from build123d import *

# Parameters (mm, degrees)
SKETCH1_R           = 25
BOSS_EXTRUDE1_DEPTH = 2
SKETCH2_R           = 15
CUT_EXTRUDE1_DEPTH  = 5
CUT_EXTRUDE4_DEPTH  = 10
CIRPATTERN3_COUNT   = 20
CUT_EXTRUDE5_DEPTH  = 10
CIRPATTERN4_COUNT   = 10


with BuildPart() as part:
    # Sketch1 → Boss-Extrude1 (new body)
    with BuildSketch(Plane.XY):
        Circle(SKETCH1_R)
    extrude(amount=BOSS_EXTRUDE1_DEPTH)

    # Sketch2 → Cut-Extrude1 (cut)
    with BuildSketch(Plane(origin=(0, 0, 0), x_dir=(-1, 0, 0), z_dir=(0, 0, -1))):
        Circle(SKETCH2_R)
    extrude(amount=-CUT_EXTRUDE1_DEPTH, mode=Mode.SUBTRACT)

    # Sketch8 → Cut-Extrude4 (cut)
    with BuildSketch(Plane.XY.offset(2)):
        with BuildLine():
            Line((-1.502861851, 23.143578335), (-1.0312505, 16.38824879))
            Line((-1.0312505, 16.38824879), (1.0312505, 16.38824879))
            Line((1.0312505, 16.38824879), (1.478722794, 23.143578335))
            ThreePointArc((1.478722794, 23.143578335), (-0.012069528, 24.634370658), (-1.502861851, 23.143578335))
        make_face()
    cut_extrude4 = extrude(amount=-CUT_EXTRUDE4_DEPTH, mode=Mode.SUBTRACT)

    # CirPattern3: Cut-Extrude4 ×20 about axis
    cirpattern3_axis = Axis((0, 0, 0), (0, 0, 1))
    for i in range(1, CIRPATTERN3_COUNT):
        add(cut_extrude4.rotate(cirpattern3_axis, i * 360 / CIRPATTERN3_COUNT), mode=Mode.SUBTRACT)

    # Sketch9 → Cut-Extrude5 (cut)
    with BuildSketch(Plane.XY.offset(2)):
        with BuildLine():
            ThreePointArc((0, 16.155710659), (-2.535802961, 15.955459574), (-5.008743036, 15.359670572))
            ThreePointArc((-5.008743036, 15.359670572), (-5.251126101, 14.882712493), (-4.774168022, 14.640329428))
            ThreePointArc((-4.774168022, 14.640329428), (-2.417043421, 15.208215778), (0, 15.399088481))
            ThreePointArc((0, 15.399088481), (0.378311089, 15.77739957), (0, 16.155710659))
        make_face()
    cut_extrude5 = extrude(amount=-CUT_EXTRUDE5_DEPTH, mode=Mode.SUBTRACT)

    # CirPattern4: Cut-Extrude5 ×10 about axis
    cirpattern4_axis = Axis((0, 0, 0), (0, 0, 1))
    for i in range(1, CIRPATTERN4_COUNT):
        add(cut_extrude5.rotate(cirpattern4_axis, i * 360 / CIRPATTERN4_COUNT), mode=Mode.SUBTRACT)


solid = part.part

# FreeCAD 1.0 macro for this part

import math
import FreeCAD as App
import Part
import Sketcher

V = App.Vector

doc = App.newDocument("Part")
body = doc.addObject("PartDesign::Body", "Body")

# Sketch on XY plane
sketch1 = doc.addObject("Sketcher::SketchObject", "Sketch")
body.addObject(sketch1)
sketch1.AttachmentSupport = (doc.XY_Plane, [""])
sketch1.MapMode = "FlatFace"
sketch1.addGeometry(Part.Circle(V(0, 0, 0), V(0, 0, 1), 25), False)
sketch1.addConstraint([
    Sketcher.Constraint("Coincident", 0, 3, -1, 1),
    Sketcher.Constraint("Diameter", 0, 50.0),
])
pad1 = doc.addObject("PartDesign::Pad", "Pad")
body.addObject(pad1)
pad1.Profile = sketch1
pad1.Length = 2

# Sketch on XY plane
sketch2 = doc.addObject("Sketcher::SketchObject", "Sketch001")
body.addObject(sketch2)
sketch2.AttachmentSupport = (doc.XY_Plane, [""])
sketch2.MapMode = "FlatFace"
sketch2.addGeometry(Part.Circle(V(0, 0, 0), V(0, 0, 1), 15), False)
sketch2.addConstraint([
    Sketcher.Constraint("Coincident", 0, 3, -1, 1),
    Sketcher.Constraint("Diameter", 0, 30.0),
])
pocket1 = doc.addObject("PartDesign::Pocket", "Pocket")
body.addObject(pocket1)
pocket1.Profile = sketch2
pocket1.Length = 5
pocket1.Reversed = True

# Sketch on XY plane
sketch3 = doc.addObject("Sketcher::SketchObject", "Sketch002")
body.addObject(sketch3)
sketch3.AttachmentSupport = (doc.XY_Plane, [""])
sketch3.MapMode = "FlatFace"
sketch3.AttachmentOffset = App.Placement(V(0, 0, 2), App.Rotation())
sketch3.addGeometry([
    Part.LineSegment(V(-1.5, 23.1, 0), V(-1, 16.4, 0)),
    Part.LineSegment(V(-1, 16.4, 0), V(1, 16.4, 0)),
    Part.LineSegment(V(1, 16.4, 0), V(1.5, 23.1, 0)),
    Part.ArcOfCircle(Part.Circle(V(0, 23.1, 0), V(0, 0, 1), 1.5), math.radians(0), math.radians(180)),
], False)
sketch3.addConstraint([
    Sketcher.Constraint("Coincident", 0, 2, 1, 1),
    Sketcher.Constraint("Coincident", 1, 2, 2, 1),
    Sketcher.Constraint("Coincident", 2, 2, 3, 1),
    Sketcher.Constraint("Coincident", 3, 2, 0, 1),
    Sketcher.Constraint("Horizontal", 1),
    Sketcher.Constraint("Horizontal", 3, 3, 2, 2),
    Sketcher.Constraint("Horizontal", 2, 2, 3, 2),
    Sketcher.Constraint("DistanceX", 1, 1, 1, 2, 2.062501),
    Sketcher.Constraint("Radius", 3, 1.490792),
    Sketcher.Constraint("Distance", 0, 6.771772),
    Sketcher.Constraint("DistanceX", 3, 3, -1, 1, 0.01207),
    Sketcher.Constraint("DistanceY", -1, 1, 3, 3, 23.143578),
    Sketcher.Constraint("DistanceX", 0, 2, -1, 1, 1.031251),
])
pocket2 = doc.addObject("PartDesign::Pocket", "Pocket001")
body.addObject(pocket2)
pocket2.Profile = sketch3
pocket2.Length = 10
doc.recompute()

polarpattern = doc.addObject("PartDesign::PolarPattern", "PolarPattern")
body.addObject(polarpattern)
polarpattern.Originals = [pocket2]
polarpattern.Axis = (doc.Z_Axis, [""])
polarpattern.Angle = 360
polarpattern.Occurrences = 20
body.Tip = polarpattern

# Sketch on XY plane
sketch4 = doc.addObject("Sketcher::SketchObject", "Sketch003")
body.addObject(sketch4)
sketch4.AttachmentSupport = (doc.XY_Plane, [""])
sketch4.MapMode = "FlatFace"
sketch4.AttachmentOffset = App.Placement(V(0, 0, 2), App.Rotation())
sketch4.addGeometry([
    Part.ArcOfCircle(Part.Circle(V(0, 0, 0), V(0, 0, 1), 16.16), math.radians(90), math.radians(108.06)),
    Part.ArcOfCircle(Part.Circle(V(-4.89, 15, 0), V(0, 0, 1), 0.38), math.radians(108), math.radians(288)),
    Part.ArcOfCircle(Part.Circle(V(0, 0, 0), V(0, 0, 1), 15.4), math.radians(90), math.radians(108.06)),
    Part.ArcOfCircle(Part.Circle(V(0, 15.78, 0), V(0, 0, 1), 0.38), math.radians(-90), math.radians(90)),
], False)
sketch4.addConstraint([
    Sketcher.Constraint("Tangent", 0, 2, 1, 1),
    Sketcher.Constraint("Tangent", 1, 2, 2, 2),
    Sketcher.Constraint("Tangent", 2, 1, 3, 1),
    Sketcher.Constraint("Tangent", 3, 2, 0, 1),
    Sketcher.Constraint("Coincident", 0, 3, -1, 1),
    Sketcher.Constraint("Coincident", 2, 3, -1, 1),
    Sketcher.Constraint("PointOnObject", 3, 3, -2),
    Sketcher.Constraint("DistanceY", -1, 1, 1, 3, 15.0),
    Sketcher.Constraint("Radius", 0, 16.155711),
    Sketcher.Constraint("Radius", 1, 0.378311),
])
pocket3 = doc.addObject("PartDesign::Pocket", "Pocket002")
body.addObject(pocket3)
pocket3.Profile = sketch4
pocket3.Length = 10
doc.recompute()

polarpattern2 = doc.addObject("PartDesign::PolarPattern", "PolarPattern001")
body.addObject(polarpattern2)
polarpattern2.Originals = [pocket3]
polarpattern2.Axis = (doc.Z_Axis, [""])
polarpattern2.Angle = 360
polarpattern2.Occurrences = 10
body.Tip = polarpattern2

doc.recompute()
